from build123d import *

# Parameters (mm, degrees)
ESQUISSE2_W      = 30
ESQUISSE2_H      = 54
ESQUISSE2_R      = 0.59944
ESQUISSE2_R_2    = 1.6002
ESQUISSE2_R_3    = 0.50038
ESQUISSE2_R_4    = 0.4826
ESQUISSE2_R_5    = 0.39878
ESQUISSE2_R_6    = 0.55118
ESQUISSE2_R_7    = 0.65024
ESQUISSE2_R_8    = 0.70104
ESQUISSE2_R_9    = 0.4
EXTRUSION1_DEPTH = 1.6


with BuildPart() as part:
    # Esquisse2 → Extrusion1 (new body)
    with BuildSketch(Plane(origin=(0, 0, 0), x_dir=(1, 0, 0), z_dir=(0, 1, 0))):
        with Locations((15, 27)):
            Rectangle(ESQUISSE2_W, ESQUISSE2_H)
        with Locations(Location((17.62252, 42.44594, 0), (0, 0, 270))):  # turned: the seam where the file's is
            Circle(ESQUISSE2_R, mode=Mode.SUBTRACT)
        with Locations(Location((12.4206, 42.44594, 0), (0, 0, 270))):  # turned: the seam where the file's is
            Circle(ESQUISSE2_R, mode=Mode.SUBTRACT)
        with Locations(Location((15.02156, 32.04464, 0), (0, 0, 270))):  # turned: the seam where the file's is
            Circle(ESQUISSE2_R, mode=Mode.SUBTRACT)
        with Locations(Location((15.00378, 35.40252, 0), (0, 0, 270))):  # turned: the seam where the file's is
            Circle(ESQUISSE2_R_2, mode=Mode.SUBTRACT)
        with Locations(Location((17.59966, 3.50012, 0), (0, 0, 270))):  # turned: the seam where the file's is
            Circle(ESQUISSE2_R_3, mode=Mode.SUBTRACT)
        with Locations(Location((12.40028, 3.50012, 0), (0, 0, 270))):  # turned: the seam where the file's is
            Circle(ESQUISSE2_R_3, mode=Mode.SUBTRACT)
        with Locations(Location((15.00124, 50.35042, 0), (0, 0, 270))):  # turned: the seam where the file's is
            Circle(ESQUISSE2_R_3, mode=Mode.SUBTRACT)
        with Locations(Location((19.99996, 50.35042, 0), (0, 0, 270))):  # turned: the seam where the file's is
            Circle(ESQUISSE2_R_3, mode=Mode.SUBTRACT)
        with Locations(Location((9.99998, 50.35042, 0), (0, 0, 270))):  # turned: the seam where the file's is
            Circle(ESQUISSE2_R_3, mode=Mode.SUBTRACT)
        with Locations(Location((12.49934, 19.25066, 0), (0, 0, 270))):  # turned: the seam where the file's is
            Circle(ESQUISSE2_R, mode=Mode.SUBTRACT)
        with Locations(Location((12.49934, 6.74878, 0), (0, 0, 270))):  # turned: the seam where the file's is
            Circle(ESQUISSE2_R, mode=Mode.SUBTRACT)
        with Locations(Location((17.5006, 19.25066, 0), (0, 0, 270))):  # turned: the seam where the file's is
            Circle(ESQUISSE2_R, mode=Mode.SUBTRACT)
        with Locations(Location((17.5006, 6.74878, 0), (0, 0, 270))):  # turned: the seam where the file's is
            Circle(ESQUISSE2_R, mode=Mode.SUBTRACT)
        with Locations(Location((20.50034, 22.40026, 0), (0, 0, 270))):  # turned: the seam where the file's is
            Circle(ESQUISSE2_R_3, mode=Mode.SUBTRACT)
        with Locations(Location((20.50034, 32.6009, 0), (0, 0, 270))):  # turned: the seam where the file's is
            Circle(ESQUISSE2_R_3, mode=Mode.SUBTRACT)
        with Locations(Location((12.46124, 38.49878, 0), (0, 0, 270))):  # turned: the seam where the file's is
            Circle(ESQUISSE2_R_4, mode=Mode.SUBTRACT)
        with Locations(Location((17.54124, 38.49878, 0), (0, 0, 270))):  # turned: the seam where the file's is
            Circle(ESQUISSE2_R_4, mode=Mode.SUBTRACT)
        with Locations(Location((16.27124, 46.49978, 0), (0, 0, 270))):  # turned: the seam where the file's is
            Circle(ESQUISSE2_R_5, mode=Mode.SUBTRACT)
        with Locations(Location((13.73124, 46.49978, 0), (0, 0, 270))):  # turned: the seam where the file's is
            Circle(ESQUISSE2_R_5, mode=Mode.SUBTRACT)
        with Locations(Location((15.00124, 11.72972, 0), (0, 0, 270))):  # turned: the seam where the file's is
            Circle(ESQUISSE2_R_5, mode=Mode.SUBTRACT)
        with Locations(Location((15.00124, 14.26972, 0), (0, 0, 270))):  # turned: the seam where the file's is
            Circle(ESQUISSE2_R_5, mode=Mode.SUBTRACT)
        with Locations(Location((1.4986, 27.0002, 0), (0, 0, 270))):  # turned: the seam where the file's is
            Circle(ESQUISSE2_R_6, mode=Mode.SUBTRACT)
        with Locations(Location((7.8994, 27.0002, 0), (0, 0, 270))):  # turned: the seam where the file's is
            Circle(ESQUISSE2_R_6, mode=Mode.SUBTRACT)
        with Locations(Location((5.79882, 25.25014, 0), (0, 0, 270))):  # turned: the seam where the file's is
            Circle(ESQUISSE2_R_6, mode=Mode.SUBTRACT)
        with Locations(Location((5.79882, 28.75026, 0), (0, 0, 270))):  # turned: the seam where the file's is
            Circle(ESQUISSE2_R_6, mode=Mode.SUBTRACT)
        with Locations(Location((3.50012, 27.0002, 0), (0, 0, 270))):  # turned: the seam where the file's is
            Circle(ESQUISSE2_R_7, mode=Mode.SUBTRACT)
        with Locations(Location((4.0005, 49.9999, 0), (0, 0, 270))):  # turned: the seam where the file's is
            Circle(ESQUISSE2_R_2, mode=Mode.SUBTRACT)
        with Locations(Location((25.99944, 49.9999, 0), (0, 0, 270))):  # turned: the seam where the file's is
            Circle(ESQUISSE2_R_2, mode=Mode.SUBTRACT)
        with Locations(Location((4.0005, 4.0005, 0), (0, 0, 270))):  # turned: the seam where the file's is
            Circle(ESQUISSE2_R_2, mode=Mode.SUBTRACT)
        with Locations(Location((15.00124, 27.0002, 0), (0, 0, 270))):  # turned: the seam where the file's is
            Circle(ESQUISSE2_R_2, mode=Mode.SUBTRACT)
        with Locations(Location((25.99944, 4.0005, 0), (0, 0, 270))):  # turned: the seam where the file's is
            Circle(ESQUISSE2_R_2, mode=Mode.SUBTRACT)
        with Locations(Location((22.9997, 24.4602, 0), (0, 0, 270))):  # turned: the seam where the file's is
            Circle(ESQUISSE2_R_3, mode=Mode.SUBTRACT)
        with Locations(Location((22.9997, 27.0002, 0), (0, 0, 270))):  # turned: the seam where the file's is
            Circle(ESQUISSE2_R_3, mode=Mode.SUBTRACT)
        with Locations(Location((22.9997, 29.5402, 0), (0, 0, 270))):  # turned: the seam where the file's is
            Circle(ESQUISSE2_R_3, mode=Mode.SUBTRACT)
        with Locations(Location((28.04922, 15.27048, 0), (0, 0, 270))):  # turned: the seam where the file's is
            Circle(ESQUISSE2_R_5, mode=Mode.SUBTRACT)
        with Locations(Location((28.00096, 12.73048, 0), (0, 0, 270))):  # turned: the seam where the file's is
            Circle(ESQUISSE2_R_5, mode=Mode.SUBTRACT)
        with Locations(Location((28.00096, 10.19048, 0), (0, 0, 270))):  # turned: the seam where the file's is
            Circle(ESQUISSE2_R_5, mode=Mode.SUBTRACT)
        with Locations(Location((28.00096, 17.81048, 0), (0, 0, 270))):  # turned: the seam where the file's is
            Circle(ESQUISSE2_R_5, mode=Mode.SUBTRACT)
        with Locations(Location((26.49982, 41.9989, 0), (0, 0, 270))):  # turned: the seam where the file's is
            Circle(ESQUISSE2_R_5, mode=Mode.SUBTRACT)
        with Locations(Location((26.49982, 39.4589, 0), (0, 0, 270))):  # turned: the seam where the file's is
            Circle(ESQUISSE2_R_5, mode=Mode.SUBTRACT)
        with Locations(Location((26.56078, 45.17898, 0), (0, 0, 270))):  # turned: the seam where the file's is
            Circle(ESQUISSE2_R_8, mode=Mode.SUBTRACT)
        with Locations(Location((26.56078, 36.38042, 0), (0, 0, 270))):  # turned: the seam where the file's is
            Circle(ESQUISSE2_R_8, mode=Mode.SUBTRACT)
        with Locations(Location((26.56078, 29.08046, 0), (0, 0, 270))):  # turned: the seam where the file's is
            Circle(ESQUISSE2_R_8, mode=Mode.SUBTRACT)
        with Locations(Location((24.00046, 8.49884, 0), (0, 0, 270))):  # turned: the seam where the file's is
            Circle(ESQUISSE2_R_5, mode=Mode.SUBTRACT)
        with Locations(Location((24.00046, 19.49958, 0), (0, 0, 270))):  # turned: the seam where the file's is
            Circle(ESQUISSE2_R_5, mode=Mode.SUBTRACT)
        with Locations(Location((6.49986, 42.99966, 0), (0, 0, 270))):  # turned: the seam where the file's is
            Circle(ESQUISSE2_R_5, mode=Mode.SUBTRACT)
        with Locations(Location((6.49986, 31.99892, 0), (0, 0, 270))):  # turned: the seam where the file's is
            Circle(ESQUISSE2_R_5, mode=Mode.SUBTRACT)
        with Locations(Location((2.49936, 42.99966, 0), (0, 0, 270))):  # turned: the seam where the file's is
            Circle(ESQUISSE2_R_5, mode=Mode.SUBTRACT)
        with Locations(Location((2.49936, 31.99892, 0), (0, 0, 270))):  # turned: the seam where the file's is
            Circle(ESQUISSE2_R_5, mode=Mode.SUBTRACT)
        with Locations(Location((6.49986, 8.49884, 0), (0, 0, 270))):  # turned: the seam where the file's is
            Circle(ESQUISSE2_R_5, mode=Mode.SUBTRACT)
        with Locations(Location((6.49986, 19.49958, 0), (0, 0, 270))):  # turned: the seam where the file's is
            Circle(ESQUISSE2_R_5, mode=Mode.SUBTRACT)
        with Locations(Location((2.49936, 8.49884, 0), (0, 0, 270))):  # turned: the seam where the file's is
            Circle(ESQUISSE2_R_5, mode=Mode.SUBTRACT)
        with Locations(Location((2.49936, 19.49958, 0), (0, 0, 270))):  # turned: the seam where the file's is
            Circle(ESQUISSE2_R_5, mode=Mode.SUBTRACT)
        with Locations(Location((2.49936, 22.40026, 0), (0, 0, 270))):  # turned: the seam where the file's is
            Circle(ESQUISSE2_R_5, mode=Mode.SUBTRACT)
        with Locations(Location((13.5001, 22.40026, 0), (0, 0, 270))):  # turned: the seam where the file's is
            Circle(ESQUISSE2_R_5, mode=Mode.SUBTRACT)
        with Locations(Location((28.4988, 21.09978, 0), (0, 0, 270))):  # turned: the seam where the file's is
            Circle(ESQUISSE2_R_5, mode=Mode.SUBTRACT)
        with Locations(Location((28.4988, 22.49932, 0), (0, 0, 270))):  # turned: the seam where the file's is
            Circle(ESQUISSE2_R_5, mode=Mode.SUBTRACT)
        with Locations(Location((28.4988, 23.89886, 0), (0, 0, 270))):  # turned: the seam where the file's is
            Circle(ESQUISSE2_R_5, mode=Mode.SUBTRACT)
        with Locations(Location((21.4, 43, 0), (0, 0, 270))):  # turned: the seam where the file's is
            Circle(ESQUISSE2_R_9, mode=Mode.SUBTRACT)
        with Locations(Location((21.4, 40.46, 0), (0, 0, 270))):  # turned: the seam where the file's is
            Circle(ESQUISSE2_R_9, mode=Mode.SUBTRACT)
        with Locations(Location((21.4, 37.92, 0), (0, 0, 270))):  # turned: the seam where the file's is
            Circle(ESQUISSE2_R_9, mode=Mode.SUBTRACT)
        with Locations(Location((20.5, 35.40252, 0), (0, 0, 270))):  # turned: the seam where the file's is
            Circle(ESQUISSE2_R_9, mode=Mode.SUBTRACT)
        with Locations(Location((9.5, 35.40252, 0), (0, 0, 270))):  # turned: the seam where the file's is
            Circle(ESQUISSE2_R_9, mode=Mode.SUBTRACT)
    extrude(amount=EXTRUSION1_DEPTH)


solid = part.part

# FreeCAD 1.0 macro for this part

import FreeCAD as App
import Part
import Sketcher
from FreeCAD import Vector


def add_polygon(sketch, points):
    """Adds a closed chain of lines whose ends are joined by coincident constraints."""
    first, n = sketch.GeometryCount, len(points)
    for a, b in zip(points, points[1:] + points[:1]):
        sketch.addGeometry(Part.LineSegment(App.Vector(*a, 0), App.Vector(*b, 0)), False)
    for i in range(n):
        sketch.addConstraint(Sketcher.Constraint("Coincident", first + i, 2, first + (i + 1) % n, 1))

doc = App.newDocument("Part")
body = doc.addObject("PartDesign::Body", "Body")

sketch1 = body.newObject("Sketcher::SketchObject", "Sketch")
sketch1.AttachmentSupport = (doc.getObject("XZ_Plane"), [""])
sketch1.MapMode = "FlatFace"
add_polygon(sketch1, [(0, -54), (0, 0), (30, 0), (30, -54)])
sketch1.addGeometry(Part.Circle(Vector(4.0005, -4.0005, 0), Vector(0, 0, 1), 1.6002), False)
sketch1.addGeometry(Part.Circle(Vector(2.49936, -8.49884, 0), Vector(0, 0, 1), 0.39878), False)
sketch1.addGeometry(Part.Circle(Vector(6.49986, -8.49884, 0), Vector(0, 0, 1), 0.39878), False)
sketch1.addGeometry(Part.Circle(Vector(12.40028, -3.50012, 0), Vector(0, 0, 1), 0.50038), False)
sketch1.addGeometry(Part.Circle(Vector(12.49934, -6.74878, 0), Vector(0, 0, 1), 0.59944), False)
sketch1.addGeometry(Part.Circle(Vector(2.49936, -19.49958, 0), Vector(0, 0, 1), 0.39878), False)
sketch1.addGeometry(Part.Circle(Vector(6.49986, -19.49958, 0), Vector(0, 0, 1), 0.39878), False)
sketch1.addGeometry(Part.Circle(Vector(2.49936, -22.40026, 0), Vector(0, 0, 1), 0.39878), False)
sketch1.addGeometry(Part.Circle(Vector(5.79882, -25.25014, 0), Vector(0, 0, 1), 0.55118), False)
sketch1.addGeometry(Part.Circle(Vector(12.49934, -19.25066, 0), Vector(0, 0, 1), 0.59944), False)
sketch1.addGeometry(Part.Circle(Vector(13.5001, -22.40026, 0), Vector(0, 0, 1), 0.39878), False)
sketch1.addGeometry(Part.Circle(Vector(17.59966, -3.50012, 0), Vector(0, 0, 1), 0.50038), False)
sketch1.addGeometry(Part.Circle(Vector(17.5006, -6.74878, 0), Vector(0, 0, 1), 0.59944), False)
sketch1.addGeometry(Part.Circle(Vector(15.00124, -11.72972, 0), Vector(0, 0, 1), 0.39878), False)
sketch1.addGeometry(Part.Circle(Vector(15.00124, -14.26972, 0), Vector(0, 0, 1), 0.39878), False)
sketch1.addGeometry(Part.Circle(Vector(24.00046, -8.49884, 0), Vector(0, 0, 1), 0.39878), False)
sketch1.addGeometry(Part.Circle(Vector(25.99944, -4.0005, 0), Vector(0, 0, 1), 1.6002), False)
sketch1.addGeometry(Part.Circle(Vector(28.00096, -10.19048, 0), Vector(0, 0, 1), 0.39878), False)
sketch1.addGeometry(Part.Circle(Vector(28.00096, -12.73048, 0), Vector(0, 0, 1), 0.39878), False)
sketch1.addGeometry(Part.Circle(Vector(17.5006, -19.25066, 0), Vector(0, 0, 1), 0.59944), False)
sketch1.addGeometry(Part.Circle(Vector(20.50034, -22.40026, 0), Vector(0, 0, 1), 0.50038), False)
sketch1.addGeometry(Part.Circle(Vector(24.00046, -19.49958, 0), Vector(0, 0, 1), 0.39878), False)
sketch1.addGeometry(Part.Circle(Vector(28.04922, -15.27048, 0), Vector(0, 0, 1), 0.39878), False)
sketch1.addGeometry(Part.Circle(Vector(28.00096, -17.81048, 0), Vector(0, 0, 1), 0.39878), False)
sketch1.addGeometry(Part.Circle(Vector(22.9997, -24.4602, 0), Vector(0, 0, 1), 0.50038), False)
sketch1.addGeometry(Part.Circle(Vector(28.4988, -21.09978, 0), Vector(0, 0, 1), 0.39878), False)
sketch1.addGeometry(Part.Circle(Vector(28.4988, -22.49932, 0), Vector(0, 0, 1), 0.39878), False)
sketch1.addGeometry(Part.Circle(Vector(28.4988, -23.89886, 0), Vector(0, 0, 1), 0.39878), False)
sketch1.addGeometry(Part.Circle(Vector(1.4986, -27.0002, 0), Vector(0, 0, 1), 0.55118), False)
sketch1.addGeometry(Part.Circle(Vector(3.50012, -27.0002, 0), Vector(0, 0, 1), 0.65024), False)
sketch1.addGeometry(Part.Circle(Vector(2.49936, -31.99892, 0), Vector(0, 0, 1), 0.39878), False)
sketch1.addGeometry(Part.Circle(Vector(5.79882, -28.75026, 0), Vector(0, 0, 1), 0.55118), False)
sketch1.addGeometry(Part.Circle(Vector(7.8994, -27.0002, 0), Vector(0, 0, 1), 0.55118), False)
sketch1.addGeometry(Part.Circle(Vector(6.49986, -31.99892, 0), Vector(0, 0, 1), 0.39878), False)
sketch1.addGeometry(Part.Circle(Vector(9.5, -35.40252, 0), Vector(0, 0, 1), 0.4), False)
sketch1.addGeometry(Part.Circle(Vector(12.46124, -38.49878, 0), Vector(0, 0, 1), 0.4826), False)
sketch1.addGeometry(Part.Circle(Vector(2.49936, -42.99966, 0), Vector(0, 0, 1), 0.39878), False)
sketch1.addGeometry(Part.Circle(Vector(6.49986, -42.99966, 0), Vector(0, 0, 1), 0.39878), False)
sketch1.addGeometry(Part.Circle(Vector(4.0005, -49.9999, 0), Vector(0, 0, 1), 1.6002), False)
sketch1.addGeometry(Part.Circle(Vector(12.4206, -42.44594, 0), Vector(0, 0, 1), 0.59944), False)
sketch1.addGeometry(Part.Circle(Vector(9.99998, -50.35042, 0), Vector(0, 0, 1), 0.50038), False)
sketch1.addGeometry(Part.Circle(Vector(13.73124, -46.49978, 0), Vector(0, 0, 1), 0.39878), False)
sketch1.addGeometry(Part.Circle(Vector(15.00124, -27.0002, 0), Vector(0, 0, 1), 1.6002), False)
sketch1.addGeometry(Part.Circle(Vector(15.02156, -32.04464, 0), Vector(0, 0, 1), 0.59944), False)
sketch1.addGeometry(Part.Circle(Vector(20.50034, -32.6009, 0), Vector(0, 0, 1), 0.50038), False)
sketch1.addGeometry(Part.Circle(Vector(15.00378, -35.40252, 0), Vector(0, 0, 1), 1.6002), False)
sketch1.addGeometry(Part.Circle(Vector(17.54124, -38.49878, 0), Vector(0, 0, 1), 0.4826), False)
sketch1.addGeometry(Part.Circle(Vector(20.5, -35.40252, 0), Vector(0, 0, 1), 0.4), False)
sketch1.addGeometry(Part.Circle(Vector(21.4, -37.92, 0), Vector(0, 0, 1), 0.4), False)
sketch1.addGeometry(Part.Circle(Vector(22.9997, -27.0002, 0), Vector(0, 0, 1), 0.50038), False)
sketch1.addGeometry(Part.Circle(Vector(22.9997, -29.5402, 0), Vector(0, 0, 1), 0.50038), False)
sketch1.addGeometry(Part.Circle(Vector(26.56078, -29.08046, 0), Vector(0, 0, 1), 0.70104), False)
sketch1.addGeometry(Part.Circle(Vector(26.56078, -36.38042, 0), Vector(0, 0, 1), 0.70104), False)
sketch1.addGeometry(Part.Circle(Vector(17.62252, -42.44594, 0), Vector(0, 0, 1), 0.59944), False)
sketch1.addGeometry(Part.Circle(Vector(21.4, -40.46, 0), Vector(0, 0, 1), 0.4), False)
sketch1.addGeometry(Part.Circle(Vector(21.4, -43, 0), Vector(0, 0, 1), 0.4), False)
sketch1.addGeometry(Part.Circle(Vector(16.27124, -46.49978, 0), Vector(0, 0, 1), 0.39878), False)
sketch1.addGeometry(Part.Circle(Vector(15.00124, -50.35042, 0), Vector(0, 0, 1), 0.50038), False)
sketch1.addGeometry(Part.Circle(Vector(19.99996, -50.35042, 0), Vector(0, 0, 1), 0.50038), False)
sketch1.addGeometry(Part.Circle(Vector(26.49982, -39.4589, 0), Vector(0, 0, 1), 0.39878), False)
sketch1.addGeometry(Part.Circle(Vector(26.49982, -41.9989, 0), Vector(0, 0, 1), 0.39878), False)
sketch1.addGeometry(Part.Circle(Vector(26.56078, -45.17898, 0), Vector(0, 0, 1), 0.70104), False)
sketch1.addGeometry(Part.Circle(Vector(25.99944, -49.9999, 0), Vector(0, 0, 1), 1.6002), False)
sketch1.addConstraint([
    Sketcher.Constraint("Vertical", 0),
    Sketcher.Constraint("Horizontal", 1),
    Sketcher.Constraint("Vertical", 2),
    Sketcher.Constraint("Horizontal", 3),
    Sketcher.Constraint("Coincident", 0, 2, -1, 1),
    Sketcher.Constraint("Equal", 5, 6),
    Sketcher.Constraint("Equal", 6, 9),
    Sketcher.Constraint("Equal", 9, 10),
    Sketcher.Constraint("Equal", 10, 11),
    Sketcher.Constraint("Equal", 8, 13),
    Sketcher.Constraint("Equal", 11, 14),
    Sketcher.Constraint("Equal", 7, 15),
    Sketcher.Constraint("Equal", 13, 16),
    Sketcher.Constraint("Equal", 14, 17),
    Sketcher.Constraint("Equal", 17, 18),
    Sketcher.Constraint("Equal", 18, 19),
    Sketcher.Constraint("Equal", 4, 20),
    Sketcher.Constraint("Equal", 19, 21),
    Sketcher.Constraint("Equal", 21, 22),
    Sketcher.Constraint("Equal", 16, 23),
    Sketcher.Constraint("Equal", 15, 24),
    Sketcher.Constraint("Equal", 22, 25),
    Sketcher.Constraint("Equal", 25, 26),
    Sketcher.Constraint("Equal", 26, 27),
    Sketcher.Constraint("Equal", 24, 28),
    Sketcher.Constraint("Equal", 27, 29),
    Sketcher.Constraint("Equal", 29, 30),
    Sketcher.Constraint("Equal", 30, 31),
    Sketcher.Constraint("Equal", 12, 32),
    Sketcher.Constraint("Equal", 31, 34),
    Sketcher.Constraint("Equal", 32, 35),
    Sketcher.Constraint("Equal", 35, 36),
    Sketcher.Constraint("Equal", 34, 37),
    Sketcher.Constraint("Equal", 37, 40),
    Sketcher.Constraint("Equal", 40, 41),
    Sketcher.Constraint("Equal", 20, 42),
    Sketcher.Constraint("Equal", 23, 43),
    Sketcher.Constraint("Equal", 28, 44),
    Sketcher.Constraint("Equal", 41, 45),
    Sketcher.Constraint("Equal", 42, 46),
    Sketcher.Constraint("Equal", 43, 47),
    Sketcher.Constraint("Equal", 44, 48),
    Sketcher.Constraint("Equal", 46, 49),
    Sketcher.Constraint("Equal", 39, 50),
    Sketcher.Constraint("Equal", 38, 51),
    Sketcher.Constraint("Equal", 51, 52),
    Sketcher.Constraint("Equal", 48, 53),
    Sketcher.Constraint("Equal", 53, 54),
    Sketcher.Constraint("Equal", 55, 56),
    Sketcher.Constraint("Equal", 47, 57),
    Sketcher.Constraint("Equal", 52, 58),
    Sketcher.Constraint("Equal", 58, 59),
    Sketcher.Constraint("Equal", 45, 60),
    Sketcher.Constraint("Equal", 54, 61),
    Sketcher.Constraint("Equal", 61, 62),
    Sketcher.Constraint("Equal", 60, 63),
    Sketcher.Constraint("Equal", 63, 64),
    Sketcher.Constraint("Equal", 56, 65),
    Sketcher.Constraint("Equal", 49, 66),
    Sketcher.Constraint("Horizontal", 5, 3, 6, 3),
    Sketcher.Constraint("Horizontal", 9, 3, 10, 3),
    Sketcher.Constraint("Horizontal", 11, 3, 14, 3),
    Sketcher.Constraint("Horizontal", 7, 3, 15, 3),
    Sketcher.Constraint("Horizontal", 8, 3, 16, 3),
    Sketcher.Constraint("Horizontal", 6, 3, 19, 3),
    Sketcher.Constraint("Horizontal", 4, 3, 20, 3),
    Sketcher.Constraint("Horizontal", 13, 3, 23, 3),
    Sketcher.Constraint("Horizontal", 14, 3, 24, 3),
    Sketcher.Constraint("Horizontal", 10, 3, 25, 3),
    Sketcher.Constraint("Horizontal", 32, 3, 33, 3),
    Sketcher.Constraint("Horizontal", 33, 3, 36, 3),
    Sketcher.Constraint("Horizontal", 34, 3, 37, 3),
    Sketcher.Constraint("Horizontal", 40, 3, 41, 3),
    Sketcher.Constraint("Horizontal", 36, 3, 46, 3),
    Sketcher.Constraint("Horizontal", 38, 3, 49, 3),
    Sketcher.Constraint("Horizontal", 39, 3, 50, 3),
    Sketcher.Constraint("Horizontal", 49, 3, 51, 3),
    Sketcher.Constraint("Horizontal", 46, 3, 53, 3),
    Sketcher.Constraint("Horizontal", 43, 3, 57, 3),
    Sketcher.Constraint("Horizontal", 45, 3, 60, 3),
    Sketcher.Constraint("Horizontal", 44, 3, 61, 3),
    Sketcher.Constraint("Horizontal", 61, 3, 62, 3),
    Sketcher.Constraint("Horizontal", 42, 3, 66, 3),
    Sketcher.Constraint("Vertical", 5, 3, 9, 3),
    Sketcher.Constraint("Vertical", 6, 3, 10, 3),
    Sketcher.Constraint("Vertical", 9, 3, 11, 3),
    Sketcher.Constraint("Vertical", 8, 3, 13, 3),
    Sketcher.Constraint("Vertical", 17, 3, 18, 3),
    Sketcher.Constraint("Vertical", 21, 3, 22, 3),
    Sketcher.Constraint("Vertical", 16, 3, 23, 3),
    Sketcher.Constraint("Vertical", 19, 3, 25, 3),
    Sketcher.Constraint("Vertical", 22, 3, 27, 3),
    Sketcher.Constraint("Vertical", 29, 3, 30, 3),
    Sketcher.Constraint("Vertical", 30, 3, 31, 3),
    Sketcher.Constraint("Vertical", 11, 3, 34, 3),
    Sketcher.Constraint("Vertical", 12, 3, 35, 3),
    Sketcher.Constraint("Vertical", 10, 3, 37, 3),
    Sketcher.Constraint("Vertical", 34, 3, 40, 3),
    Sketcher.Constraint("Vertical", 37, 3, 41, 3),
    Sketcher.Constraint("Vertical", 4, 3, 42, 3),
    Sketcher.Constraint("Vertical", 18, 3, 46, 3),
    Sketcher.Constraint("Vertical", 24, 3, 48, 3),
    Sketcher.Constraint("Vertical", 28, 3, 53, 3),
    Sketcher.Constraint("Vertical", 53, 3, 54, 3),
    Sketcher.Constraint("Vertical", 55, 3, 56, 3),
    Sketcher.Constraint("Vertical", 52, 3, 58, 3),
    Sketcher.Constraint("Vertical", 58, 3, 59, 3),
    Sketcher.Constraint("Vertical", 46, 3, 61, 3),
    Sketcher.Constraint("Vertical", 63, 3, 64, 3),
    Sketcher.Constraint("Vertical", 56, 3, 65, 3),
    Sketcher.Constraint("Vertical", 20, 3, 66, 3),
    Sketcher.Constraint("Diameter", 38, 0.8),
    Sketcher.Constraint("DistanceX", 1, 1, 1, 2, 30.0),
    Sketcher.Constraint("DistanceY", 0, 1, 0, 2, 54.0),
    Sketcher.Constraint("DistanceY", 59, 3, -1, 1, 43.0),
    Sketcher.Constraint("Diameter", 4, 3.2004),
    Sketcher.Constraint("Diameter", 39, 0.9652),
    Sketcher.Constraint("DistanceX", -1, 1, 38, 3, 9.5),
    Sketcher.Constraint("DistanceX", -1, 1, 51, 3, 20.5),
    Sketcher.Constraint("DistanceX", -1, 1, 52, 3, 21.4),
    Sketcher.Constraint("Diameter", 5, 0.79756),
    Sketcher.Constraint("Diameter", 7, 1.00076),
    Sketcher.Constraint("Diameter", 8, 1.19888),
    Sketcher.Constraint("Diameter", 12, 1.10236),
    Sketcher.Constraint("Diameter", 33, 1.30048),
    Sketcher.Constraint("Diameter", 55, 1.40208),
    Sketcher.Constraint("DistanceY", 52, 3, -1, 1, 37.92),
    Sketcher.Constraint("DistanceY", 58, 3, -1, 1, 40.46),
    Sketcher.Constraint("DistanceX", -1, 1, 4, 3, 4.0005),
    Sketcher.Constraint("DistanceY", 4, 3, -1, 1, 4.0005),
    Sketcher.Constraint("DistanceX", -1, 1, 14, 3, 13.5001),
    Sketcher.Constraint("DistanceX", -1, 1, 16, 3, 17.5006),
    Sketcher.Constraint("DistanceX", -1, 1, 28, 3, 22.9997),
    Sketcher.Constraint("DistanceY", 28, 3, -1, 1, 24.4602),
    Sketcher.Constraint("DistanceX", -1, 1, 29, 3, 28.4988),
    Sketcher.Constraint("DistanceX", -1, 1, 32, 3, 1.4986),
    Sketcher.Constraint("DistanceY", 32, 3, -1, 1, 27.0002),
    Sketcher.Constraint("DistanceX", -1, 1, 36, 3, 7.8994),
    Sketcher.Constraint("DistanceY", 42, 3, -1, 1, 49.9999),
    Sketcher.Constraint("DistanceX", -1, 1, 43, 3, 12.4206),
    Sketcher.Constraint("DistanceY", 48, 3, -1, 1, 32.6009),
    Sketcher.Constraint("DistanceY", 54, 3, -1, 1, 29.5402),
    Sketcher.Constraint("DistanceY", 63, 3, -1, 1, 39.4589),
    Sketcher.Constraint("DistanceY", 64, 3, -1, 1, 41.9989),
    Sketcher.Constraint("DistanceX", -1, 1, 5, 3, 2.49936),
    Sketcher.Constraint("DistanceY", 5, 3, -1, 1, 8.49884),
    Sketcher.Constraint("DistanceX", -1, 1, 6, 3, 6.49986),
    Sketcher.Constraint("DistanceX", -1, 1, 7, 3, 12.40028),
    Sketcher.Constraint("DistanceY", 7, 3, -1, 1, 3.50012),
    Sketcher.Constraint("DistanceX", -1, 1, 8, 3, 12.49934),
    Sketcher.Constraint("DistanceY", 8, 3, -1, 1, 6.74878),
    Sketcher.Constraint("DistanceY", 9, 3, -1, 1, 19.49958),
    Sketcher.Constraint("DistanceY", 11, 3, -1, 1, 22.40026),
    Sketcher.Constraint("DistanceX", -1, 1, 12, 3, 5.79882),
    Sketcher.Constraint("DistanceY", 12, 3, -1, 1, 25.25014),
    Sketcher.Constraint("DistanceY", 13, 3, -1, 1, 19.25066),
    Sketcher.Constraint("DistanceX", -1, 1, 15, 3, 17.59966),
    Sketcher.Constraint("DistanceX", -1, 1, 17, 3, 15.00124),
    Sketcher.Constraint("DistanceY", 17, 3, -1, 1, 11.72972),
    Sketcher.Constraint("DistanceY", 18, 3, -1, 1, 14.26972),
    Sketcher.Constraint("DistanceX", -1, 1, 19, 3, 24.00046),
    Sketcher.Constraint("DistanceX", -1, 1, 20, 3, 25.99944),
    Sketcher.Constraint("DistanceX", -1, 1, 21, 3, 28.00096),
    Sketcher.Constraint("DistanceY", 21, 3, -1, 1, 10.19048),
    Sketcher.Constraint("DistanceY", 22, 3, -1, 1, 12.73048),
    Sketcher.Constraint("DistanceX", -1, 1, 24, 3, 20.50034),
    Sketcher.Constraint("DistanceX", -1, 1, 26, 3, 28.04922),
    Sketcher.Constraint("DistanceY", 26, 3, -1, 1, 15.27048),
    Sketcher.Constraint("DistanceY", 27, 3, -1, 1, 17.81048),
    Sketcher.Constraint("DistanceY", 29, 3, -1, 1, 21.09978),
    Sketcher.Constraint("DistanceY", 30, 3, -1, 1, 22.49932),
    Sketcher.Constraint("DistanceY", 31, 3, -1, 1, 23.89886),
    Sketcher.Constraint("DistanceX", -1, 1, 33, 3, 3.50012),
    Sketcher.Constraint("DistanceY", 34, 3, -1, 1, 31.99892),
    Sketcher.Constraint("DistanceY", 35, 3, -1, 1, 28.75026),
    Sketcher.Constraint("DistanceY", 38, 3, -1, 1, 35.40252),
    Sketcher.Constraint("DistanceX", -1, 1, 39, 3, 12.46124),
    Sketcher.Constraint("DistanceY", 39, 3, -1, 1, 38.49878),
    Sketcher.Constraint("DistanceY", 40, 3, -1, 1, 42.99966),
    Sketcher.Constraint("DistanceY", 43, 3, -1, 1, 42.44594),
    Sketcher.Constraint("DistanceX", -1, 1, 44, 3, 9.99998),
    Sketcher.Constraint("DistanceY", 44, 3, -1, 1, 50.35042),
    Sketcher.Constraint("DistanceX", -1, 1, 45, 3, 13.73124),
    Sketcher.Constraint("DistanceY", 45, 3, -1, 1, 46.49978),
    Sketcher.Constraint("DistanceX", -1, 1, 47, 3, 15.02156),
    Sketcher.Constraint("DistanceY", 47, 3, -1, 1, 32.04464),
    Sketcher.Constraint("DistanceX", -1, 1, 49, 3, 15.00378),
    Sketcher.Constraint("DistanceX", -1, 1, 50, 3, 17.54124),
    Sketcher.Constraint("DistanceX", -1, 1, 55, 3, 26.56078),
    Sketcher.Constraint("DistanceY", 55, 3, -1, 1, 29.08046),
    Sketcher.Constraint("DistanceY", 56, 3, -1, 1, 36.38042),
    Sketcher.Constraint("DistanceX", -1, 1, 57, 3, 17.62252),
    Sketcher.Constraint("DistanceX", -1, 1, 60, 3, 16.27124),
    Sketcher.Constraint("DistanceX", -1, 1, 62, 3, 19.99996),
    Sketcher.Constraint("DistanceX", -1, 1, 63, 3, 26.49982),
    Sketcher.Constraint("DistanceY", 65, 3, -1, 1, 45.17898),
])
pad1 = body.newObject("PartDesign::Pad", "Pad")
pad1.Profile = sketch1
pad1.Length = 1.6
pad1.Reversed = True

doc.recompute()
